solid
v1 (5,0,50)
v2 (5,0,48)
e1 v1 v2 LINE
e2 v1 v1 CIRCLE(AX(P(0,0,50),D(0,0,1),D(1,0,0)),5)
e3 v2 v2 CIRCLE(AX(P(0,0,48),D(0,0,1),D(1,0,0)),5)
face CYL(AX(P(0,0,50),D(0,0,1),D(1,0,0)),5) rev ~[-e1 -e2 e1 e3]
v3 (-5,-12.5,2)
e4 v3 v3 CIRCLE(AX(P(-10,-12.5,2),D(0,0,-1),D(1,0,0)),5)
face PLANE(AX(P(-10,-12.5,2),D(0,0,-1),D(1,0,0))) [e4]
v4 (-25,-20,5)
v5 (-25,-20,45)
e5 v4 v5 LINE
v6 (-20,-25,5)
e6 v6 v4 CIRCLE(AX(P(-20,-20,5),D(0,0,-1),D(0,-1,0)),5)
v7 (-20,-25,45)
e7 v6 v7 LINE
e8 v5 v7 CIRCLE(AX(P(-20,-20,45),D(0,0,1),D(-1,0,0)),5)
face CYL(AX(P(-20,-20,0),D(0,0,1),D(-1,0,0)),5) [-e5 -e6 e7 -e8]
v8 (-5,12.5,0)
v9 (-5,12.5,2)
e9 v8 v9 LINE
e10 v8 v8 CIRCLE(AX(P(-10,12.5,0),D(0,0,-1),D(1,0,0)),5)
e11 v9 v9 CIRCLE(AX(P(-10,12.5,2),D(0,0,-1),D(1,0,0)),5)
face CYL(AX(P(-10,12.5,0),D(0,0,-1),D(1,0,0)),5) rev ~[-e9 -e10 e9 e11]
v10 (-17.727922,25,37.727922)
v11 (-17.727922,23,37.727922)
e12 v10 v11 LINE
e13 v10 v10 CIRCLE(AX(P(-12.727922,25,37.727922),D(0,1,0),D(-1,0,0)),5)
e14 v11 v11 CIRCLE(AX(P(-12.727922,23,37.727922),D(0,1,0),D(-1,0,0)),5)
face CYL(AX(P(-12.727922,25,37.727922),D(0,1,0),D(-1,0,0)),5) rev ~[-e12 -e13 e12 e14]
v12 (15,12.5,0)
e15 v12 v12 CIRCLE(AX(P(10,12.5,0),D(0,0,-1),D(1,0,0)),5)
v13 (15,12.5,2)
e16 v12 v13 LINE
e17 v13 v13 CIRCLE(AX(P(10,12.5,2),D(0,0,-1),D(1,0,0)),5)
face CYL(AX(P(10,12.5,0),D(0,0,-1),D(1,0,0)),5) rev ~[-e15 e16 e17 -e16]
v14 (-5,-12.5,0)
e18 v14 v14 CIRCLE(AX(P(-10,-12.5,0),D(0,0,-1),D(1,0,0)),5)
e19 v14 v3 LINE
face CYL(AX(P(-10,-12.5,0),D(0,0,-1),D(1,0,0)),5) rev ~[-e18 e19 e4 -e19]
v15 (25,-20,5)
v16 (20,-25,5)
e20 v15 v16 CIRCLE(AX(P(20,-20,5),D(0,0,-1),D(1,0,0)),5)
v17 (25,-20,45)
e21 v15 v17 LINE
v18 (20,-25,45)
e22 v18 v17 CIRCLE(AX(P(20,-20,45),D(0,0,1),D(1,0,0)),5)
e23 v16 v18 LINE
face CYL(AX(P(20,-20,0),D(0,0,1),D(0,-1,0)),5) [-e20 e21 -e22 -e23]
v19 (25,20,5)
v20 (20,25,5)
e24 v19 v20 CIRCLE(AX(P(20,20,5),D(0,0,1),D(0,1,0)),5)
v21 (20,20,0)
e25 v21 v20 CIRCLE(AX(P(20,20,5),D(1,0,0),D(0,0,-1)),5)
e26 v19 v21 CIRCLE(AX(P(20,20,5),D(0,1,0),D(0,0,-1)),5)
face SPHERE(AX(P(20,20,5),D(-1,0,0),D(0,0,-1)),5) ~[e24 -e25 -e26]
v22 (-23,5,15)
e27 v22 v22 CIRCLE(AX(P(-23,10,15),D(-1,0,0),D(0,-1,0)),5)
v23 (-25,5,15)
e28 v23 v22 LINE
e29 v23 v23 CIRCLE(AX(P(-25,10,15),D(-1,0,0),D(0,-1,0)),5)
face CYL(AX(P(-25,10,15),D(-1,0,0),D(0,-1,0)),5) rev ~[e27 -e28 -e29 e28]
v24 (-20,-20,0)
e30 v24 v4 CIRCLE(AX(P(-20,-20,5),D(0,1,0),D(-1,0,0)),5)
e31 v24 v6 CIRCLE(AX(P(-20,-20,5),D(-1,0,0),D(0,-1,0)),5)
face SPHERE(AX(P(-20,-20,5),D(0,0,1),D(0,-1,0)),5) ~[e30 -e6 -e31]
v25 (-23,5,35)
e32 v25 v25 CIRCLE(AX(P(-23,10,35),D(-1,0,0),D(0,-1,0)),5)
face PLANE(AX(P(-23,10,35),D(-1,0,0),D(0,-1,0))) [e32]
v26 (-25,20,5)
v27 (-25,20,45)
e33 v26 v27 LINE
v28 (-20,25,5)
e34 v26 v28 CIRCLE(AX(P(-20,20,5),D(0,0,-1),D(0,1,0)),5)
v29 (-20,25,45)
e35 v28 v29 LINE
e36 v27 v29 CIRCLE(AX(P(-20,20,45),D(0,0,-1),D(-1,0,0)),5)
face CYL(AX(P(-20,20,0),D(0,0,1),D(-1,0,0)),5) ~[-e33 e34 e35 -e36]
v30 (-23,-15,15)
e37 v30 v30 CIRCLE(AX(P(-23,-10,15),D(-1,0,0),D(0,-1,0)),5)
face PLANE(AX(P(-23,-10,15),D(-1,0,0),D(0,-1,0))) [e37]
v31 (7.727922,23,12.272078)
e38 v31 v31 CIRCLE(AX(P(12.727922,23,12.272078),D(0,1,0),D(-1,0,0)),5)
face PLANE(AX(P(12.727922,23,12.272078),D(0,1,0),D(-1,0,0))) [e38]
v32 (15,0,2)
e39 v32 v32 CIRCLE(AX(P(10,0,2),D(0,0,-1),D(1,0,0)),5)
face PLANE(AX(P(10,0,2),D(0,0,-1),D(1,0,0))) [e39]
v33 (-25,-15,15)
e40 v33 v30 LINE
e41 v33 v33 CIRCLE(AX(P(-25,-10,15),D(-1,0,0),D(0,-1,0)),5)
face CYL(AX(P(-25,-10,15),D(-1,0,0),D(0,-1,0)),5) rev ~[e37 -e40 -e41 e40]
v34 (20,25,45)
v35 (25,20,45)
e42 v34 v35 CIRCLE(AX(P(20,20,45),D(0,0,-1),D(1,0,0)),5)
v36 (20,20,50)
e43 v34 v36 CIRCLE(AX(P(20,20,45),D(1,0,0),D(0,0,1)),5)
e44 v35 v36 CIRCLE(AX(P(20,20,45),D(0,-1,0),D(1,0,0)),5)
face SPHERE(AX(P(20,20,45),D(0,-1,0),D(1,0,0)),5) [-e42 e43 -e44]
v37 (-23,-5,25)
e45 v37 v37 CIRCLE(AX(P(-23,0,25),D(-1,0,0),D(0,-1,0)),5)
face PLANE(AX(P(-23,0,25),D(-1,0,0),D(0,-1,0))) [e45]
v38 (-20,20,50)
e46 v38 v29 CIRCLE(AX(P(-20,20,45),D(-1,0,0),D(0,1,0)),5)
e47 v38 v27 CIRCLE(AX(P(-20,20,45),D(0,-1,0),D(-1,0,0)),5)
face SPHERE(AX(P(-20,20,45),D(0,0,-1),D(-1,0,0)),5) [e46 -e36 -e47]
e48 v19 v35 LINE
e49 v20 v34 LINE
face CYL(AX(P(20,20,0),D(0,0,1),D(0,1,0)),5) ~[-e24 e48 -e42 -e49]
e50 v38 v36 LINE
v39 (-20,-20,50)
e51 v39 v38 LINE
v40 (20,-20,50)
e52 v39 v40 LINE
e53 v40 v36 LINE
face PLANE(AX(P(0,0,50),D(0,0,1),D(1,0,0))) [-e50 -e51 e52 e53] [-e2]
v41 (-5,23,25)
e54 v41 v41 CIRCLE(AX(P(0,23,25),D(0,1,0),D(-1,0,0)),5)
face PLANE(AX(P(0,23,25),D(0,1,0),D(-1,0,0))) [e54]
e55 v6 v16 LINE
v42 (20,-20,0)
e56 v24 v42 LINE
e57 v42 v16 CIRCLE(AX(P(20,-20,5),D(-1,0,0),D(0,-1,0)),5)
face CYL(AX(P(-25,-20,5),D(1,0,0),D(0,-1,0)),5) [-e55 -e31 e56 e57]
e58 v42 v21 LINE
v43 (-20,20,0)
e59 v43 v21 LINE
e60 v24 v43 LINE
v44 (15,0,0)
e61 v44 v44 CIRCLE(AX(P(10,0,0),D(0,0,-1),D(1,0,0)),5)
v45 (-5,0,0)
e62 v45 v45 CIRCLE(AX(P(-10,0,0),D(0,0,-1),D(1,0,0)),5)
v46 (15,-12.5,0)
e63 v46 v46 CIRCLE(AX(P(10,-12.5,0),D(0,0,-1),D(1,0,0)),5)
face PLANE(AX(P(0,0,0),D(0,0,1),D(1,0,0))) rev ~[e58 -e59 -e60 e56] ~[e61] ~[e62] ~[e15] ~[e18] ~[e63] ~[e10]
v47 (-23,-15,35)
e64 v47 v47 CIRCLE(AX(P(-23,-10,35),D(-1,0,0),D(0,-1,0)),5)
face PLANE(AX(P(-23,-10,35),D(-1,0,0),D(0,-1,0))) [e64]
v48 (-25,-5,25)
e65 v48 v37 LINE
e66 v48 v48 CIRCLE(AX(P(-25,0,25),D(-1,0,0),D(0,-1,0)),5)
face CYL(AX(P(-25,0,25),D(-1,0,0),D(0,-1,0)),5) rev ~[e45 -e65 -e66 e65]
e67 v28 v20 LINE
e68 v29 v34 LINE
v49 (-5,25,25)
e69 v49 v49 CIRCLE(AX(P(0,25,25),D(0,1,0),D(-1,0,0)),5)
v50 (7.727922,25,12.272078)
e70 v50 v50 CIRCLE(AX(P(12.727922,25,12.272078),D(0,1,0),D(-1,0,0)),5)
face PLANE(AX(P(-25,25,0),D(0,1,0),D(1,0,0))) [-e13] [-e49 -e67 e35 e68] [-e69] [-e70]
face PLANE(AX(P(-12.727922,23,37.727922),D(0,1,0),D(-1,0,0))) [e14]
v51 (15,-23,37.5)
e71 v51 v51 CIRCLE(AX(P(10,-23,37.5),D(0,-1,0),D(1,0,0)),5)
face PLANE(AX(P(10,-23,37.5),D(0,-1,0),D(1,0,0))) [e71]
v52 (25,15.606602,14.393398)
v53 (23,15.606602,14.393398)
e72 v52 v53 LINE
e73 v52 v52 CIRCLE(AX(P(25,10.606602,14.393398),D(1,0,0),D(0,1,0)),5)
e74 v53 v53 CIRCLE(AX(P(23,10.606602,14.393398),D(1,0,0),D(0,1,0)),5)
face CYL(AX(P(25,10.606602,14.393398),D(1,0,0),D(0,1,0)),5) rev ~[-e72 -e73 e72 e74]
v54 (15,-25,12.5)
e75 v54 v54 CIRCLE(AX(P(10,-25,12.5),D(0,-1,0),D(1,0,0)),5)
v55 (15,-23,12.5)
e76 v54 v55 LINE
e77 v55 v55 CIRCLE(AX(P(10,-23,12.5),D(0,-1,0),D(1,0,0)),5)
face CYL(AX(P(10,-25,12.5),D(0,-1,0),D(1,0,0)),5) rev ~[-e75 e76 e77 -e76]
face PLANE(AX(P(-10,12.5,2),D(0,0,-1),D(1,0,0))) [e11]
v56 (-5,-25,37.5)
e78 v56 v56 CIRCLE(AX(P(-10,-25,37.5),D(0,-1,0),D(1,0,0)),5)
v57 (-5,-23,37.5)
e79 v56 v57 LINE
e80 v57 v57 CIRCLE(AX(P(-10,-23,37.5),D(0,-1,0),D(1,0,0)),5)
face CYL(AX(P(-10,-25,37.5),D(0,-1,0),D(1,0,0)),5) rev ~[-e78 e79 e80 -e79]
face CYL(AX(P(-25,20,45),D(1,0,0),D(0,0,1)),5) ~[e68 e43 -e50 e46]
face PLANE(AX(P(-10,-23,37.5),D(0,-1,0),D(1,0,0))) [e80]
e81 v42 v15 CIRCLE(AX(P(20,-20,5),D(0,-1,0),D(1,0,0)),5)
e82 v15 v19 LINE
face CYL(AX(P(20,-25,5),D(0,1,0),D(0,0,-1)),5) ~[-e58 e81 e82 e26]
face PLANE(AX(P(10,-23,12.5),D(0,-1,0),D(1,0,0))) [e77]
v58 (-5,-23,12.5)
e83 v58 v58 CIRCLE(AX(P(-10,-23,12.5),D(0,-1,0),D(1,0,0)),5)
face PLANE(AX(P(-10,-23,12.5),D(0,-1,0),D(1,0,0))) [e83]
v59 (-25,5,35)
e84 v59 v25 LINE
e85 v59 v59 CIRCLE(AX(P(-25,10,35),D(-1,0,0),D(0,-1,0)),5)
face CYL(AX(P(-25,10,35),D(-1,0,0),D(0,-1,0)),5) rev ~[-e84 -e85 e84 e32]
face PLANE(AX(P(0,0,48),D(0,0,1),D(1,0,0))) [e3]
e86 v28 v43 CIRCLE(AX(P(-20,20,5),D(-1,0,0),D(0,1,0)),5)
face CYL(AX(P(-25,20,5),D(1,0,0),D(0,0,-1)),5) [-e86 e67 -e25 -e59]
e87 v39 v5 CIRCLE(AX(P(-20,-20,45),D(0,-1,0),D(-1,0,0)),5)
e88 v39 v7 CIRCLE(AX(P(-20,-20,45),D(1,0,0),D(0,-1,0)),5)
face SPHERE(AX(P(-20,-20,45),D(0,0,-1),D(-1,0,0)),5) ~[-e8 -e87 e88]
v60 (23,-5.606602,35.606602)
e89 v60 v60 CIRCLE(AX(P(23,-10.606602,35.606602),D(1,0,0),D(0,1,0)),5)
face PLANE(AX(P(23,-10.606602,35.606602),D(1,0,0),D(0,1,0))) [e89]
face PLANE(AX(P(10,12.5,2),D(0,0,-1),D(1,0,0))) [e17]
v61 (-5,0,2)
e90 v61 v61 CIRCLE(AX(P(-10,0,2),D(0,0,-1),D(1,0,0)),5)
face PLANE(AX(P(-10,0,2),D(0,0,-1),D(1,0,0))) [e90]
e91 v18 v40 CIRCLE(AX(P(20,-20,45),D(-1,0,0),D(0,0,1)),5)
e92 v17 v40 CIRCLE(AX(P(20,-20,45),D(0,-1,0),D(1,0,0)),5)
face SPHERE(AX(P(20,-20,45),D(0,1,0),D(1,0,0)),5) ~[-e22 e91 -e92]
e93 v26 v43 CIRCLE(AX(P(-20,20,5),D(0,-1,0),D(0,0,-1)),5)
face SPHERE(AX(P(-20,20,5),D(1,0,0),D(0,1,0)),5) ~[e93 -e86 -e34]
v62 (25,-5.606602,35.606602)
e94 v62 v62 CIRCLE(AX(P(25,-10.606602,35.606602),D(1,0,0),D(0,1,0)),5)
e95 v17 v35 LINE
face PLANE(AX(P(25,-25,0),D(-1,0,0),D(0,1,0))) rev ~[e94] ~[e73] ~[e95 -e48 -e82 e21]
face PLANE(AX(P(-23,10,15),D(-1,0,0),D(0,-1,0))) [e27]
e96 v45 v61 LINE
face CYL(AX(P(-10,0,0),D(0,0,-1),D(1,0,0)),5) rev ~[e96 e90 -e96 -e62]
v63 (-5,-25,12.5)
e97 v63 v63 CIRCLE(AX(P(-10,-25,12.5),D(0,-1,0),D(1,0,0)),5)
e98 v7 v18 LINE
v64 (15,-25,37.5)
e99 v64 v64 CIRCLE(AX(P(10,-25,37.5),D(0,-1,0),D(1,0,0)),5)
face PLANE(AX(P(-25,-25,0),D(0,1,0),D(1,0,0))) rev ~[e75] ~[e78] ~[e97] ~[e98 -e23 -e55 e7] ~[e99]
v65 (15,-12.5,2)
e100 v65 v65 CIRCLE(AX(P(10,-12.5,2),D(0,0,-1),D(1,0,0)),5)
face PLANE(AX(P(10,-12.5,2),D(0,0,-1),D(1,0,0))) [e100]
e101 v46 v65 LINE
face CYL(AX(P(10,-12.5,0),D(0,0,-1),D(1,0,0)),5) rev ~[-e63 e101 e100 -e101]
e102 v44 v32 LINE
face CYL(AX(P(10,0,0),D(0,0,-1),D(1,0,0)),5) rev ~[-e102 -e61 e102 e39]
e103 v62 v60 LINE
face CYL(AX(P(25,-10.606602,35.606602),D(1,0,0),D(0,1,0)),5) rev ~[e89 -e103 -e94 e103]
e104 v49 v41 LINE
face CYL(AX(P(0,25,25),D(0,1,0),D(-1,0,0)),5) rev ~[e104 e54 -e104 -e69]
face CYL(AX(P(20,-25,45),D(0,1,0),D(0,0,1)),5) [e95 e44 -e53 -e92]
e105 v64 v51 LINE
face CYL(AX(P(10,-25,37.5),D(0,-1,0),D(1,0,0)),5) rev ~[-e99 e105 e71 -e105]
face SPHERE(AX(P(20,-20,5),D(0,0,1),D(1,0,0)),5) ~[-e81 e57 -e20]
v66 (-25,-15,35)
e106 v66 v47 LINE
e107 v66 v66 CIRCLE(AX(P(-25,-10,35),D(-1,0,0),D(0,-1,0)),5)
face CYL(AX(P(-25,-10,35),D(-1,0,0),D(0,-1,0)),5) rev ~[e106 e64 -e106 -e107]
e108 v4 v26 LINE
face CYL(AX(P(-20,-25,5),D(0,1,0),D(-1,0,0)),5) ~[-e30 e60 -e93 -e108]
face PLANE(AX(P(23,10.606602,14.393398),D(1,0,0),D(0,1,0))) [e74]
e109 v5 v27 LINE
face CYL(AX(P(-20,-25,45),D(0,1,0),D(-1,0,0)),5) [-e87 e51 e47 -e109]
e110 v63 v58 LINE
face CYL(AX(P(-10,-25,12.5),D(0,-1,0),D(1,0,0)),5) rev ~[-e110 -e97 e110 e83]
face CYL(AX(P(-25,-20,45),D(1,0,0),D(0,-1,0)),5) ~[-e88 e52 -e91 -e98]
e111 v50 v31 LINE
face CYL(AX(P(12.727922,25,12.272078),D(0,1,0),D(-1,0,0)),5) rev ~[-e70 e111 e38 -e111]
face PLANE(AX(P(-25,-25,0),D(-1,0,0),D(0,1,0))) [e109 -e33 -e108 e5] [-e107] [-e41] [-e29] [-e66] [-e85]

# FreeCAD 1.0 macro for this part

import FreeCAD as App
import Part
import Sketcher

V = App.Vector


def edges_at(feature, points):
    """Names of the edges that pass closest to the given points."""
    edges = feature.Shape.Edges
    near = lambda p: min(range(len(edges)), key=lambda i: edges[i].distToShape(Part.Vertex(*p))[0])
    return sorted({f"Edge{near(p) + 1}" for p in points})


def add_polygon(sketch, points):
    """Adds a closed chain of lines whose ends are joined by coincident constraints."""
    first, n = sketch.GeometryCount, len(points)
    for a, b in zip(points, points[1:] + points[:1]):
        sketch.addGeometry(Part.LineSegment(App.Vector(*a, 0), App.Vector(*b, 0)), False)
    for i in range(n):
        sketch.addConstraint(Sketcher.Constraint("Coincident", first + i, 2, first + (i + 1) % n, 1))

doc = App.newDocument("Part")
body = doc.addObject("PartDesign::Body", "Body")

# Sketch on XY plane
sketch1 = doc.addObject("Sketcher::SketchObject", "Sketch")
body.addObject(sketch1)
sketch1.AttachmentSupport = (doc.XY_Plane, [""])
sketch1.MapMode = "FlatFace"
add_polygon(sketch1, [(-25, 25), (-25, -25), (25, -25), (25, 25)])  # lines 0-3
sketch1.addConstraint(Sketcher.Constraint("Vertical", 0))
sketch1.addConstraint(Sketcher.Constraint("Horizontal", 1))
sketch1.addConstraint(Sketcher.Constraint("Vertical", 2))
sketch1.addConstraint(Sketcher.Constraint("Horizontal", 3))
sketch1.addConstraint(Sketcher.Constraint("Symmetric", 0, 2, 2, 2, -1, 1))
sketch1.addConstraint(Sketcher.Constraint("Equal", 3, 0))
sketch1.addConstraint(Sketcher.Constraint("DistanceX", 1, 1, 1, 2, 50.0))
pad1 = doc.addObject("PartDesign::Pad", "Pad")
body.addObject(pad1)
pad1.Profile = sketch1
pad1.Length = 50

# Sketch on XY plane
sketch2 = doc.addObject("Sketcher::SketchObject", "Sketch001")
body.addObject(sketch2)
sketch2.AttachmentSupport = (doc.XY_Plane, [""])
sketch2.MapMode = "FlatFace"
sketch2.AttachmentOffset = App.Placement(V(0, 0, 50), App.Rotation())
sketch2.addGeometry(Part.Circle(V(0, 0, 0), V(0, 0, 1), 5), False)
sketch2.addConstraint(Sketcher.Constraint("Coincident", 0, 3, -1, 1))
sketch2.addConstraint(Sketcher.Constraint("Diameter", 0, 10.0))
pocket1 = doc.addObject("PartDesign::Pocket", "Pocket")
body.addObject(pocket1)
pocket1.Profile = sketch2
pocket1.Length = 2

# Sketch on YZ plane
sketch3 = doc.addObject("Sketcher::SketchObject", "Sketch002")
body.addObject(sketch3)
sketch3.AttachmentSupport = (doc.YZ_Plane, [""])
sketch3.MapMode = "FlatFace"
sketch3.AttachmentOffset = App.Placement(V(0, 0, 25), App.Rotation())
sketch3.addGeometry(Part.Circle(V(11, 14, 0), V(0, 0, 1), 5), False)
sketch3.addGeometry(Part.Circle(V(-11, 36, 0), V(0, 0, 1), 5), False)
sketch3.addConstraint(Sketcher.Constraint("Equal", 0, 1))
sketch3.addConstraint(Sketcher.Constraint("Diameter", 0, 10.0))
sketch3.addConstraint(Sketcher.Constraint("DistanceX", -1, 1, 0, 3, 10.606602))
sketch3.addConstraint(Sketcher.Constraint("DistanceY", -1, 1, 0, 3, 14.393398))
sketch3.addConstraint(Sketcher.Constraint("DistanceX", 1, 3, -1, 1, 10.606602))
sketch3.addConstraint(Sketcher.Constraint("DistanceY", -1, 1, 1, 3, 35.606602))
pocket2 = doc.addObject("PartDesign::Pocket", "Pocket001")
body.addObject(pocket2)
pocket2.Profile = sketch3
pocket2.Length = 2

# Sketch on XY plane
sketch4 = doc.addObject("Sketcher::SketchObject", "Sketch003")
body.addObject(sketch4)
sketch4.AttachmentSupport = (doc.XY_Plane, [""])
sketch4.MapMode = "FlatFace"
sketch4.addGeometry(Part.Circle(V(10, 12, 0), V(0, 0, 1), 5), False)
sketch4.addGeometry(Part.Circle(V(10, 0, 0), V(0, 0, 1), 5), False)
sketch4.addGeometry(Part.Circle(V(10, -12, 0), V(0, 0, 1), 5), False)
sketch4.addGeometry(Part.Circle(V(-10, 12, 0), V(0, 0, 1), 5), False)
sketch4.addGeometry(Part.Circle(V(-10, 0, 0), V(0, 0, 1), 5), False)
sketch4.addGeometry(Part.Circle(V(-10, -12, 0), V(0, 0, 1), 5), False)
sketch4.addConstraint(Sketcher.Constraint("Equal", 0, 1))
sketch4.addConstraint(Sketcher.Constraint("Equal", 1, 2))
sketch4.addConstraint(Sketcher.Constraint("Equal", 2, 3))
sketch4.addConstraint(Sketcher.Constraint("Equal", 3, 4))
sketch4.addConstraint(Sketcher.Constraint("Equal", 4, 5))
sketch4.addConstraint(Sketcher.Constraint("Symmetric", 2, 3, 3, 3, -1, 1))
sketch4.addConstraint(Sketcher.Constraint("Symmetric", 1, 3, 4, 3, -1, 1))
sketch4.addConstraint(Sketcher.Constraint("Symmetric", 0, 3, 5, 3, -1, 1))
sketch4.addConstraint(Sketcher.Constraint("Symmetric", 0, 3, 3, 3, -2))
sketch4.addConstraint(Sketcher.Constraint("PointOnObject", 1, 3, -1))
sketch4.addConstraint(Sketcher.Constraint("Vertical", 0, 3, 1, 3))
sketch4.addConstraint(Sketcher.Constraint("Diameter", 0, 10.0))
sketch4.addConstraint(Sketcher.Constraint("DistanceX", -1, 1, 0, 3, 10.0))
sketch4.addConstraint(Sketcher.Constraint("DistanceY", 2, 3, 0, 3, 25.0))
pocket3 = doc.addObject("PartDesign::Pocket", "Pocket002")
body.addObject(pocket3)
pocket3.Profile = sketch4
pocket3.Length = 2
pocket3.Reversed = True

# Sketch on XZ plane
sketch5 = doc.addObject("Sketcher::SketchObject", "Sketch004")
body.addObject(sketch5)
sketch5.AttachmentSupport = (doc.XZ_Plane, [""])
sketch5.MapMode = "FlatFace"
sketch5.AttachmentOffset = App.Placement(V(0, 0, -25), App.Rotation())
sketch5.addGeometry(Part.Circle(V(13, 12, 0), V(0, 0, 1), 5), False)
sketch5.addGeometry(Part.Circle(V(0, 25, 0), V(0, 0, 1), 5), False)
sketch5.addGeometry(Part.Circle(V(-13, 38, 0), V(0, 0, 1), 5), False)
sketch5.addConstraint(Sketcher.Constraint("Equal", 0, 1))
sketch5.addConstraint(Sketcher.Constraint("Equal", 1, 2))
sketch5.addConstraint(Sketcher.Constraint("PointOnObject", 1, 3, -2))
sketch5.addConstraint(Sketcher.Constraint("Diameter", 0, 10.0))
sketch5.addConstraint(Sketcher.Constraint("DistanceY", -1, 1, 1, 3, 25.0))
sketch5.addConstraint(Sketcher.Constraint("DistanceX", -1, 1, 0, 3, 12.727922))
sketch5.addConstraint(Sketcher.Constraint("DistanceY", -1, 1, 0, 3, 12.272078))
sketch5.addConstraint(Sketcher.Constraint("DistanceX", 2, 3, -1, 1, 12.727922))
sketch5.addConstraint(Sketcher.Constraint("DistanceY", -1, 1, 2, 3, 37.727922))
pocket4 = doc.addObject("PartDesign::Pocket", "Pocket003")
body.addObject(pocket4)
pocket4.Profile = sketch5
pocket4.Length = 2
pocket4.Reversed = True

# Sketch on XZ plane
sketch6 = doc.addObject("Sketcher::SketchObject", "Sketch005")
body.addObject(sketch6)
sketch6.AttachmentSupport = (doc.XZ_Plane, [""])
sketch6.MapMode = "FlatFace"
sketch6.AttachmentOffset = App.Placement(V(0, 0, 25), App.Rotation())
sketch6.addGeometry(Part.Circle(V(-10, 38, 0), V(0, 0, 1), 5), False)
sketch6.addGeometry(Part.Circle(V(-10, 12, 0), V(0, 0, 1), 5), False)
sketch6.addGeometry(Part.Circle(V(10, 12, 0), V(0, 0, 1), 5), False)
sketch6.addGeometry(Part.Circle(V(10, 38, 0), V(0, 0, 1), 5), False)
sketch6.addConstraint(Sketcher.Constraint("Equal", 0, 1))
sketch6.addConstraint(Sketcher.Constraint("Equal", 1, 2))
sketch6.addConstraint(Sketcher.Constraint("Equal", 2, 3))
sketch6.addConstraint(Sketcher.Constraint("Symmetric", 1, 3, 2, 3, -2))
sketch6.addConstraint(Sketcher.Constraint("Symmetric", 0, 3, 3, 3, -2))
sketch6.addConstraint(Sketcher.Constraint("Vertical", 0, 3, 1, 3))
sketch6.addConstraint(Sketcher.Constraint("Diameter", 0, 10.0))
sketch6.addConstraint(Sketcher.Constraint("DistanceX", 0, 3, -1, 1, 10.0))
sketch6.addConstraint(Sketcher.Constraint("DistanceY", 1, 3, 0, 3, 25.0))
sketch6.addConstraint(Sketcher.Constraint("DistanceY", -1, 1, 0, 3, 37.5))
pocket5 = doc.addObject("PartDesign::Pocket", "Pocket004")
body.addObject(pocket5)
pocket5.Profile = sketch6
pocket5.Length = 2

# Sketch on YZ plane
sketch7 = doc.addObject("Sketcher::SketchObject", "Sketch006")
body.addObject(sketch7)
sketch7.AttachmentSupport = (doc.YZ_Plane, [""])
sketch7.MapMode = "FlatFace"
sketch7.AttachmentOffset = App.Placement(V(0, 0, -25), App.Rotation())
sketch7.addGeometry(Part.Circle(V(10, 35, 0), V(0, 0, 1), 5), False)
sketch7.addGeometry(Part.Circle(V(0, 25, 0), V(0, 0, 1), 5), False)
sketch7.addGeometry(Part.Circle(V(-10, 35, 0), V(0, 0, 1), 5), False)
sketch7.addGeometry(Part.Circle(V(-10, 15, 0), V(0, 0, 1), 5), False)
sketch7.addGeometry(Part.Circle(V(10, 15, 0), V(0, 0, 1), 5), False)
sketch7.addConstraint(Sketcher.Constraint("Equal", 0, 1))
sketch7.addConstraint(Sketcher.Constraint("Equal", 1, 2))
sketch7.addConstraint(Sketcher.Constraint("Equal", 2, 3))
sketch7.addConstraint(Sketcher.Constraint("Equal", 3, 4))
sketch7.addConstraint(Sketcher.Constraint("Symmetric", 0, 3, 2, 3, -2))
sketch7.addConstraint(Sketcher.Constraint("Symmetric", 3, 3, 4, 3, -2))
sketch7.addConstraint(Sketcher.Constraint("PointOnObject", 1, 3, -2))
sketch7.addConstraint(Sketcher.Constraint("Vertical", 2, 3, 3, 3))
sketch7.addConstraint(Sketcher.Constraint("Diameter", 0, 10.0))
sketch7.addConstraint(Sketcher.Constraint("DistanceX", -1, 1, 0, 3, 10.0))
sketch7.addConstraint(Sketcher.Constraint("DistanceY", -1, 1, 0, 3, 35.0))
sketch7.addConstraint(Sketcher.Constraint("DistanceY", -1, 1, 1, 3, 25.0))
sketch7.addConstraint(Sketcher.Constraint("DistanceY", -1, 1, 3, 3, 15.0))
pocket6 = doc.addObject("PartDesign::Pocket", "Pocket005")
body.addObject(pocket6)
pocket6.Profile = sketch7
pocket6.Length = 2
pocket6.Reversed = True
doc.recompute()

fillet = doc.addObject("PartDesign::Fillet", "Fillet")
body.addObject(fillet)
fillet.Base = (pocket6, edges_at(pocket6, [
    (25, 0, 50),
    (25, -25, 25),
    (-25, -25, 25),
    (0, 25, 0),
    (-25, 25, 25),
    (-25, 0, 50),
    (25, 0, 0),
    (0, -25, 0),
    (25, 25, 25),
    (-25, 0, 0),
    (0, 25, 50),
    (0, -25, 50),
]))
fillet.Radius = 5

doc.recompute()
